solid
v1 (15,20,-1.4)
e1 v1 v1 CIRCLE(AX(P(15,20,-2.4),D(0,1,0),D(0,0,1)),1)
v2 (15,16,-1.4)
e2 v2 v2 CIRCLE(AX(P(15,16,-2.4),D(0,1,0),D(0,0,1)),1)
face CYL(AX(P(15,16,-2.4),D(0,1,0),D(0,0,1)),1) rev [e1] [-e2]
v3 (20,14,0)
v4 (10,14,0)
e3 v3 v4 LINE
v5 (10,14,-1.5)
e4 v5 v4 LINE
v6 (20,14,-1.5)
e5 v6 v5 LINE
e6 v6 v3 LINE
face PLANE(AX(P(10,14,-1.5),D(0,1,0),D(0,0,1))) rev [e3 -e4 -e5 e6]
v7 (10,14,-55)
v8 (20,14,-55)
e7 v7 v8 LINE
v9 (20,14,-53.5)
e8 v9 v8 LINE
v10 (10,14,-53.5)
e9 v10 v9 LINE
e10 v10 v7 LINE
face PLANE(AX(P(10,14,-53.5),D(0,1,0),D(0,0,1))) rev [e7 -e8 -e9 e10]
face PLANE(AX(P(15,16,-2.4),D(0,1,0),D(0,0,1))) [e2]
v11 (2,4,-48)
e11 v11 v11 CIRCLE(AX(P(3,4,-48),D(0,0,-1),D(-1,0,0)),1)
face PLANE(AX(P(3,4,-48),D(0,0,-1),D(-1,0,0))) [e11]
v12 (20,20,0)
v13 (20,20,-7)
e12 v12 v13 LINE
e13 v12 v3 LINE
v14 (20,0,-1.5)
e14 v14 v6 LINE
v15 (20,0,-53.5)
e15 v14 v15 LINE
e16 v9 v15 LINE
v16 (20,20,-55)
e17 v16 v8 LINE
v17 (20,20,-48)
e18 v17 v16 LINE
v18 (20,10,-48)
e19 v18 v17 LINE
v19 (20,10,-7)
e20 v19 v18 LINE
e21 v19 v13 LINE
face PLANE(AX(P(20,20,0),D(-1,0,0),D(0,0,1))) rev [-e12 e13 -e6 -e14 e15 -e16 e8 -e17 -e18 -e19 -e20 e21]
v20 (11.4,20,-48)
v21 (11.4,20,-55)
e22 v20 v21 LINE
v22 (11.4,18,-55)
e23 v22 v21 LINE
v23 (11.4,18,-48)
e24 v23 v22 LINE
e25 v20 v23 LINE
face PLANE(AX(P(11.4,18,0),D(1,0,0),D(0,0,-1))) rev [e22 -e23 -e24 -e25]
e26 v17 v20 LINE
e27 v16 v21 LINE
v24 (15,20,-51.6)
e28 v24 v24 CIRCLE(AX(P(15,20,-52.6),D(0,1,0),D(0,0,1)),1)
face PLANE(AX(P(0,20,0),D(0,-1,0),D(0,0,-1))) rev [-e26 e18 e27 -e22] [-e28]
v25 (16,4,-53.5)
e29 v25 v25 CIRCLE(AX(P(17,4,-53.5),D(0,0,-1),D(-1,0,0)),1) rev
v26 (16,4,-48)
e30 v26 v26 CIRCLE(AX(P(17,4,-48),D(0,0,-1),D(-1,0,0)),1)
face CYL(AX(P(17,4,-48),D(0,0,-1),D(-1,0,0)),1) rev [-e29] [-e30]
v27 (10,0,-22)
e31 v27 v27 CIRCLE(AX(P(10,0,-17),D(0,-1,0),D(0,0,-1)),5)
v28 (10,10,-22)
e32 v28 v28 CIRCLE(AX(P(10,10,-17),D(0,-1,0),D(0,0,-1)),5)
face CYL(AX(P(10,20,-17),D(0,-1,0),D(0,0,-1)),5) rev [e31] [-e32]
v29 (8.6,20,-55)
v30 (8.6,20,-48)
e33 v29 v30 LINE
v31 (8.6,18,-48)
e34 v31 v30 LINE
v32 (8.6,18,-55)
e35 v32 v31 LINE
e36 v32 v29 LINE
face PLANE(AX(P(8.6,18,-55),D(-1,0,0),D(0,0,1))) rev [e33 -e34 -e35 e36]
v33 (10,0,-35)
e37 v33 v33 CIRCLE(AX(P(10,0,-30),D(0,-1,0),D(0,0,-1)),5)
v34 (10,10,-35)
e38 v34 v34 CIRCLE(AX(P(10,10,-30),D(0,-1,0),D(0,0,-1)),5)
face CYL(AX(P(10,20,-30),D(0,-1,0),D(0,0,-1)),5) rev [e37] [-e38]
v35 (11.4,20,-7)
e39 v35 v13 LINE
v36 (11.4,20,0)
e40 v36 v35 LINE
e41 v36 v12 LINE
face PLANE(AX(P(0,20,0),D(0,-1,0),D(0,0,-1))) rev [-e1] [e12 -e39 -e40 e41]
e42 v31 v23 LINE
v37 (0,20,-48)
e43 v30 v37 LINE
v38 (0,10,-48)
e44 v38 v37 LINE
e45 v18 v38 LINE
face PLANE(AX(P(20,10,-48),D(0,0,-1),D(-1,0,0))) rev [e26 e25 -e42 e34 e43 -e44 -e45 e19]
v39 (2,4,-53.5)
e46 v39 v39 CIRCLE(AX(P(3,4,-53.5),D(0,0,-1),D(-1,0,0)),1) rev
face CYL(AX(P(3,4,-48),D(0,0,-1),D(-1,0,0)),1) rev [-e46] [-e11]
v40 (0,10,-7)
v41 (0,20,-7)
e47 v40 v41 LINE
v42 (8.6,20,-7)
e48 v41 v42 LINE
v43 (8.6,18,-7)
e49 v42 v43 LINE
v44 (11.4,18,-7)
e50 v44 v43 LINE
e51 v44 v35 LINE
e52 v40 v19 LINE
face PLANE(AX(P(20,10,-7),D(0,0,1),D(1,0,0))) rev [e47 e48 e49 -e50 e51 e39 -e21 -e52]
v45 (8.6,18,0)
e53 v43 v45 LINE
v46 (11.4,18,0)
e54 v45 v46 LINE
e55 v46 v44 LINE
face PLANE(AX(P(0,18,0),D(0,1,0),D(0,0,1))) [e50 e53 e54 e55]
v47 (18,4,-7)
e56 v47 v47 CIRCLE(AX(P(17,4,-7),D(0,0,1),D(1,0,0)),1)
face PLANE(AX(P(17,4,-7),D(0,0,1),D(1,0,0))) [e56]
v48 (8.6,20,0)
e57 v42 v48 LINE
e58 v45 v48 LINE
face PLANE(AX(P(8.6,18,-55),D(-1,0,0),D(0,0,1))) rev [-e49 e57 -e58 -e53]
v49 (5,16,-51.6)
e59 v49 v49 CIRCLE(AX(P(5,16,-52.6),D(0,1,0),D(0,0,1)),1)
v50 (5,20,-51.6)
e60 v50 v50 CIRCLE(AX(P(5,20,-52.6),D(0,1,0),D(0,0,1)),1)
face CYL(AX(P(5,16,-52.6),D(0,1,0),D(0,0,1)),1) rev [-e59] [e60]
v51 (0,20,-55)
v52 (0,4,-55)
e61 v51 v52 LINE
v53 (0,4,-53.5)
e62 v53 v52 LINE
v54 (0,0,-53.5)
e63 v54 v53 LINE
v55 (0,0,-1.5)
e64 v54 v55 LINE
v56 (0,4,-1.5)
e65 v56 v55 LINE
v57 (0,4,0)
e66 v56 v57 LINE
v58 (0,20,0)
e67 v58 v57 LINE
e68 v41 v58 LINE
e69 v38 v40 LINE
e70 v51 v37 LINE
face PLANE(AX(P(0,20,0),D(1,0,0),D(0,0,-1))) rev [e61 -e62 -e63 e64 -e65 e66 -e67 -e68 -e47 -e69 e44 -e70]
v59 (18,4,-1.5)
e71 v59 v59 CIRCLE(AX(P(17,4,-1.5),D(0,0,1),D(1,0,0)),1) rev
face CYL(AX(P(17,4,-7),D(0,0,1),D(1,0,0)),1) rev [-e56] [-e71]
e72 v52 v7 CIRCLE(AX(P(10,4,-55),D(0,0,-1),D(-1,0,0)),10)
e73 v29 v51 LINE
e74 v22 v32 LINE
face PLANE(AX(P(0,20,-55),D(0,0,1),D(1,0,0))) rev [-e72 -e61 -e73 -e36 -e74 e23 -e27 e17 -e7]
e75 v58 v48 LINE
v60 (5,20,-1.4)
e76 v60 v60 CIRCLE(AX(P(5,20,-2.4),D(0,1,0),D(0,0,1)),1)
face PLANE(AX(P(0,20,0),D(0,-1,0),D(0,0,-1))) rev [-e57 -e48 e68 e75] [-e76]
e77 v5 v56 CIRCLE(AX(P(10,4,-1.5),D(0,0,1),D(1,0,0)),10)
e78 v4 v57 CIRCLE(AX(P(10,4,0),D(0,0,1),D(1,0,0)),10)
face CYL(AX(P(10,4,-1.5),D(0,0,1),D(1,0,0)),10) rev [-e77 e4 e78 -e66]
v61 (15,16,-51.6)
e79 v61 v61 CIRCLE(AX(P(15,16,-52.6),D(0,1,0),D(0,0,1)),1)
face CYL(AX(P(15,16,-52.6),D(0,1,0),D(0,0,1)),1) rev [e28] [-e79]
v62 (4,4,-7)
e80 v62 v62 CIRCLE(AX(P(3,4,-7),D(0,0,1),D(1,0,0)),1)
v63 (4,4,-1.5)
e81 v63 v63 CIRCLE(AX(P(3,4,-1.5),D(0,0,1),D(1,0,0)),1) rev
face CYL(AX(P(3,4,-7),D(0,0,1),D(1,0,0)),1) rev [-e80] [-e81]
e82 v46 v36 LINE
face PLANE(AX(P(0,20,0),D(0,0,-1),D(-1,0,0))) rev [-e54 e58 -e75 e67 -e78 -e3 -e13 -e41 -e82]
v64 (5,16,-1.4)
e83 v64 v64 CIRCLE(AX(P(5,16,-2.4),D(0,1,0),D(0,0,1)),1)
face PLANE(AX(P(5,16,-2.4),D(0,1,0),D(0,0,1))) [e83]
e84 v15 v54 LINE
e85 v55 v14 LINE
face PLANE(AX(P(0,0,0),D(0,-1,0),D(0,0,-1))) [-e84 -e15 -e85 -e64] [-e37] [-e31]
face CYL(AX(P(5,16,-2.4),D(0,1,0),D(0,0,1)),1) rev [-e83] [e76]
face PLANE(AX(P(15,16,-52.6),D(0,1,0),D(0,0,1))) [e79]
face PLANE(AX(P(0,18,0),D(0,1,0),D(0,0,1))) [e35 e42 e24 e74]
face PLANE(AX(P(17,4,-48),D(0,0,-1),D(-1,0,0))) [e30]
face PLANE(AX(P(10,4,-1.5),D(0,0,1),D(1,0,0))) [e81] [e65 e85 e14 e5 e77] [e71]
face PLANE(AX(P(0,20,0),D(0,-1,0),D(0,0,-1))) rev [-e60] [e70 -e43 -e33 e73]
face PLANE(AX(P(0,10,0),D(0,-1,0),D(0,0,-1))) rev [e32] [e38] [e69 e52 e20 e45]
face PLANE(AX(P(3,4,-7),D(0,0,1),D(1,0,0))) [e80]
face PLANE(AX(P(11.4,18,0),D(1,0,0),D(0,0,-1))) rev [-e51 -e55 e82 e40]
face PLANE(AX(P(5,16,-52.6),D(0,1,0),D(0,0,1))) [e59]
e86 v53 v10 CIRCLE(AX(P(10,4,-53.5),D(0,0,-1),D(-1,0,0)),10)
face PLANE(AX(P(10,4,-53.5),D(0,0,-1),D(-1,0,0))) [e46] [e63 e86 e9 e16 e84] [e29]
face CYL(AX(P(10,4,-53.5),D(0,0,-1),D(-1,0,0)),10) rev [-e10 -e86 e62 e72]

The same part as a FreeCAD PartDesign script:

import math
import FreeCAD as App
import Part
import Sketcher

V = App.Vector

doc = App.newDocument("Part")
params = doc.addObject("Spreadsheet::Sheet", "Params")
for row, (alias, value) in enumerate([
    ("sketch1_width", "20 mm"),
    ("sketch1_height", "55 mm"),
    ("pad1_length", "20 mm"),
    ("sketch2_width", "20 mm"),
    ("sketch2_height", "41 mm"),
    ("pocket1_length", "10 mm"),
    ("sketch3_height", "55 mm"),
    ("sketch3_width", "2.8 mm"),
    ("pocket2_length", "2 mm"),
    ("sketch4_diameter", "2 mm"),
    ("pocket3_length", "4 mm"),
    ("sketch5_diameter", "10 mm"),
    ("sketch6_diameter", "2 mm"),
    ("pocket5_length", "7 mm"),
    ("sketch7_diameter", "2 mm"),
    ("pocket6_length", "7 mm"),
    ("sketch8_radius", "10 mm"),
    ("sketch8_width", "10 mm"),
    ("sketch8_height", "14 mm"),
    ("pocket7_length", "1.5 mm"),
    ("sketch9_radius", "10 mm"),
    ("sketch9_width", "20 mm"),
    ("sketch9_height", "4 mm"),
    ("pocket8_length", "1.5 mm"),
], start=1):
    params.set(f"A{row}", alias)
    params.set(f"B{row}", "=" + value)
    params.setAlias(f"B{row}", alias)

body = doc.addObject("PartDesign::Body", "Body")

# Sketch on XZ plane
sketch1 = doc.addObject("Sketcher::SketchObject", "Sketch")
body.addObject(sketch1)
sketch1.AttachmentSupport = (doc.XZ_Plane, [""])
sketch1.MapMode = "FlatFace"
sketch1.addGeometry([
    Part.LineSegment(V(0, -55, 0), V(0, 0, 0)),
    Part.LineSegment(V(0, 0, 0), V(20, 0, 0)),
    Part.LineSegment(V(20, 0, 0), V(20, -55, 0)),
    Part.LineSegment(V(20, -55, 0), V(0, -55, 0)),
], False)
sketch1.addConstraint([
    Sketcher.Constraint("Coincident", 0, 2, 1, 1),
    Sketcher.Constraint("Coincident", 1, 2, 2, 1),
    Sketcher.Constraint("Coincident", 2, 2, 3, 1),
    Sketcher.Constraint("Coincident", 3, 2, 0, 1),
    Sketcher.Constraint("Vertical", 0),
    Sketcher.Constraint("Horizontal", 1),
    Sketcher.Constraint("Vertical", 2),
    Sketcher.Constraint("Horizontal", 3),
    Sketcher.Constraint("Coincident", 0, 2, -1, 1),
    Sketcher.Constraint("DistanceX", 1, 1, 1, 2, 20.0),
    Sketcher.Constraint("DistanceY", 0, 1, 0, 2, 55.0),
])
sketch1.setExpression("Constraints[9]", "Params.sketch1_width")
sketch1.setExpression("Constraints[10]", "Params.sketch1_height")
pad1 = doc.addObject("PartDesign::Pad", "Pad")
body.addObject(pad1)
pad1.Profile = sketch1
pad1.setExpression("Length", "Params.pad1_length")
pad1.Reversed = True

# Sketch on XZ plane
sketch2 = doc.addObject("Sketcher::SketchObject", "Sketch001")
body.addObject(sketch2)
sketch2.AttachmentSupport = (doc.XZ_Plane, [""])
sketch2.MapMode = "FlatFace"
sketch2.AttachmentOffset = App.Placement(V(0, 0, -20), App.Rotation())
sketch2.addGeometry([
    Part.LineSegment(V(0, -48, 0), V(0, -7, 0)),
    Part.LineSegment(V(0, -7, 0), V(20, -7, 0)),
    Part.LineSegment(V(20, -7, 0), V(20, -48, 0)),
    Part.LineSegment(V(20, -48, 0), V(0, -48, 0)),
], False)
sketch2.addConstraint([
    Sketcher.Constraint("Coincident", 0, 2, 1, 1),
    Sketcher.Constraint("Coincident", 1, 2, 2, 1),
    Sketcher.Constraint("Coincident", 2, 2, 3, 1),
    Sketcher.Constraint("Coincident", 3, 2, 0, 1),
    Sketcher.Constraint("Vertical", 0),
    Sketcher.Constraint("Horizontal", 1),
    Sketcher.Constraint("Vertical", 2),
    Sketcher.Constraint("Horizontal", 3),
    Sketcher.Constraint("PointOnObject", 0, 2, -2),
    Sketcher.Constraint("DistanceX", 1, 1, 1, 2, 20.0),
    Sketcher.Constraint("DistanceY", 0, 1, 0, 2, 41.0),
    Sketcher.Constraint("DistanceY", 0, 2, -1, 1, 7.0),
])
sketch2.setExpression("Constraints[9]", "Params.sketch2_width")
sketch2.setExpression("Constraints[10]", "Params.sketch2_height")
pocket1 = doc.addObject("PartDesign::Pocket", "Pocket")
body.addObject(pocket1)
pocket1.Profile = sketch2
pocket1.setExpression("Length", "Params.pocket1_length")
pocket1.Reversed = True

# Sketch on XZ plane
sketch3 = doc.addObject("Sketcher::SketchObject", "Sketch002")
body.addObject(sketch3)
sketch3.AttachmentSupport = (doc.XZ_Plane, [""])
sketch3.MapMode = "FlatFace"
sketch3.AttachmentOffset = App.Placement(V(0, 0, -20), App.Rotation())
sketch3.addGeometry([
    Part.LineSegment(V(8.6, -55, 0), V(8.6, 0, 0)),
    Part.LineSegment(V(8.6, 0, 0), V(11.4, 0, 0)),
    Part.LineSegment(V(11.4, 0, 0), V(11.4, -55, 0)),
    Part.LineSegment(V(11.4, -55, 0), V(8.6, -55, 0)),
], False)
sketch3.addConstraint([
    Sketcher.Constraint("Coincident", 0, 2, 1, 1),
    Sketcher.Constraint("Coincident", 1, 2, 2, 1),
    Sketcher.Constraint("Coincident", 2, 2, 3, 1),
    Sketcher.Constraint("Coincident", 3, 2, 0, 1),
    Sketcher.Constraint("Vertical", 0),
    Sketcher.Constraint("Horizontal", 1),
    Sketcher.Constraint("Vertical", 2),
    Sketcher.Constraint("Horizontal", 3),
    Sketcher.Constraint("PointOnObject", 0, 2, -1),
    Sketcher.Constraint("DistanceY", 0, 1, 0, 2, 55.0),
    Sketcher.Constraint("DistanceX", 1, 1, 1, 2, 2.8),
    Sketcher.Constraint("DistanceX", -1, 1, 0, 2, 8.6),
])
sketch3.setExpression("Constraints[9]", "Params.sketch3_height")
sketch3.setExpression("Constraints[10]", "Params.sketch3_width")
pocket2 = doc.addObject("PartDesign::Pocket", "Pocket001")
body.addObject(pocket2)
pocket2.Profile = sketch3
pocket2.setExpression("Length", "Params.pocket2_length")
pocket2.Reversed = True

# Sketch on XZ plane
sketch4 = doc.addObject("Sketcher::SketchObject", "Sketch003")
body.addObject(sketch4)
sketch4.AttachmentSupport = (doc.XZ_Plane, [""])
sketch4.MapMode = "FlatFace"
sketch4.AttachmentOffset = App.Placement(V(0, 0, -20), App.Rotation())
sketch4.addGeometry([
    Part.Circle(V(15, -52.6, 0), V(0, 0, 1), 1),
    Part.Circle(V(5, -52.6, 0), V(0, 0, 1), 1),
    Part.Circle(V(15, -2.4, 0), V(0, 0, 1), 1),
    Part.Circle(V(5, -2.4, 0), V(0, 0, 1), 1),
], False)
sketch4.addConstraint([
    Sketcher.Constraint("Equal", 0, 1),
    Sketcher.Constraint("Equal", 1, 2),
    Sketcher.Constraint("Equal", 2, 3),
    Sketcher.Constraint("Horizontal", 0, 3, 1, 3),
    Sketcher.Constraint("Horizontal", 2, 3, 3, 3),
    Sketcher.Constraint("Vertical", 0, 3, 2, 3),
    Sketcher.Constraint("Vertical", 1, 3, 3, 3),
    Sketcher.Constraint("Diameter", 0, 2.0),
    Sketcher.Constraint("DistanceX", -1, 1, 0, 3, 15.0),
    Sketcher.Constraint("DistanceX", -1, 1, 1, 3, 5.0),
    Sketcher.Constraint("DistanceY", 0, 3, -1, 1, 52.6),
    Sketcher.Constraint("DistanceY", 2, 3, -1, 1, 2.4),
])
sketch4.setExpression("Constraints[7]", "Params.sketch4_diameter")
pocket3 = doc.addObject("PartDesign::Pocket", "Pocket002")
body.addObject(pocket3)
pocket3.Profile = sketch4
pocket3.setExpression("Length", "Params.pocket3_length")
pocket3.Reversed = True

# Sketch on XZ plane
sketch5 = doc.addObject("Sketcher::SketchObject", "Sketch004")
body.addObject(sketch5)
sketch5.AttachmentSupport = (doc.XZ_Plane, [""])
sketch5.MapMode = "FlatFace"
sketch5.addGeometry([
    Part.Circle(V(10, -17, 0), V(0, 0, 1), 5),
    Part.Circle(V(10, -30, 0), V(0, 0, 1), 5),
], False)
sketch5.addConstraint([
    Sketcher.Constraint("Equal", 0, 1),
    Sketcher.Constraint("Vertical", 0, 3, 1, 3),
    Sketcher.Constraint("Diameter", 0, 10.0),
    Sketcher.Constraint("DistanceX", -1, 1, 0, 3, 10.0),
    Sketcher.Constraint("DistanceY", 0, 3, -1, 1, 17.0),
    Sketcher.Constraint("DistanceY", 1, 3, -1, 1, 30.0),
])
sketch5.setExpression("Constraints[2]", "Params.sketch5_diameter")
pocket4 = doc.addObject("PartDesign::Pocket", "Pocket003")
body.addObject(pocket4)
pocket4.Profile = sketch5
pocket4.Type = "ThroughAll"

# Sketch on XY plane
sketch6 = doc.addObject("Sketcher::SketchObject", "Sketch005")
body.addObject(sketch6)
sketch6.AttachmentSupport = (doc.XY_Plane, [""])
sketch6.MapMode = "FlatFace"
sketch6.AttachmentOffset = App.Placement(V(0, 0, -55), App.Rotation())
sketch6.addGeometry([
    Part.Circle(V(17, 4, 0), V(0, 0, 1), 1),
    Part.Circle(V(3, 4, 0), V(0, 0, 1), 1),
], False)
sketch6.addConstraint([
    Sketcher.Constraint("Equal", 0, 1),
    Sketcher.Constraint("Horizontal", 0, 3, 1, 3),
    Sketcher.Constraint("Diameter", 0, 2.0),
    Sketcher.Constraint("DistanceX", -1, 1, 0, 3, 17.0),
    Sketcher.Constraint("DistanceY", -1, 1, 0, 3, 4.0),
    Sketcher.Constraint("DistanceX", -1, 1, 1, 3, 3.0),
])
sketch6.setExpression("Constraints[2]", "Params.sketch6_diameter")
pocket5 = doc.addObject("PartDesign::Pocket", "Pocket004")
body.addObject(pocket5)
pocket5.Profile = sketch6
pocket5.setExpression("Length", "Params.pocket5_length")
pocket5.Reversed = True

# Sketch on XY plane
sketch7 = doc.addObject("Sketcher::SketchObject", "Sketch006")
body.addObject(sketch7)
sketch7.AttachmentSupport = (doc.XY_Plane, [""])
sketch7.MapMode = "FlatFace"
sketch7.AttachmentOffset = App.Placement(V(0, 0, -7), App.Rotation())
sketch7.addGeometry([
    Part.Circle(V(3, 4, 0), V(0, 0, 1), 1),
    Part.Circle(V(17, 4, 0), V(0, 0, 1), 1),
], False)
sketch7.addConstraint([
    Sketcher.Constraint("Equal", 0, 1),
    Sketcher.Constraint("Horizontal", 0, 3, 1, 3),
    Sketcher.Constraint("Diameter", 0, 2.0),
    Sketcher.Constraint("DistanceX", -1, 1, 0, 3, 3.0),
    Sketcher.Constraint("DistanceY", -1, 1, 0, 3, 4.0),
    Sketcher.Constraint("DistanceX", -1, 1, 1, 3, 17.0),
])
sketch7.setExpression("Constraints[2]", "Params.sketch7_diameter")
pocket6 = doc.addObject("PartDesign::Pocket", "Pocket005")
body.addObject(pocket6)
pocket6.Profile = sketch7
pocket6.setExpression("Length", "Params.pocket6_length")
pocket6.Reversed = True

# Sketch on XY plane
sketch8 = doc.addObject("Sketcher::SketchObject", "Sketch007")
body.addObject(sketch8)
sketch8.AttachmentSupport = (doc.XY_Plane, [""])
sketch8.MapMode = "FlatFace"
sketch8.AttachmentOffset = App.Placement(V(0, 0, -55), App.Rotation())
sketch8.addGeometry([
    Part.LineSegment(V(10, 14, 0), V(20, 14, 0)),  # 0
    Part.LineSegment(V(20, 14, 0), V(20, 0, 0)),  # 1
    Part.LineSegment(V(20, 0, 0), V(0, 0, 0)),  # 2
    Part.LineSegment(V(0, 0, 0), V(0, 4, 0)),  # 3
    Part.ArcOfCircle(Part.Circle(V(10, 4, 0), V(0, 0, 1), 10), math.radians(90), math.radians(180)),  # 4
], False)
sketch8.addConstraint([
    Sketcher.Constraint("Coincident", 0, 2, 1, 1),
    Sketcher.Constraint("Coincident", 1, 2, 2, 1),
    Sketcher.Constraint("Coincident", 2, 2, 3, 1),
    Sketcher.Constraint("Tangent", 3, 2, 4, 2),
    Sketcher.Constraint("Tangent", 4, 1, 0, 1),
    Sketcher.Constraint("Horizontal", 0),
    Sketcher.Constraint("Vertical", 1),
    Sketcher.Constraint("Horizontal", 2),
    Sketcher.Constraint("Vertical", 3),
    Sketcher.Constraint("Coincident", 2, 2, -1, 1),
    Sketcher.Constraint("Radius", 4, 10.0),
    Sketcher.Constraint("DistanceX", 0, 1, 0, 2, 10.0),
    Sketcher.Constraint("DistanceY", 1, 2, 1, 1, 14.0),
])
sketch8.setExpression("Constraints[10]", "Params.sketch8_radius")
sketch8.setExpression("Constraints[11]", "Params.sketch8_width")
sketch8.setExpression("Constraints[12]", "Params.sketch8_height")
pocket7 = doc.addObject("PartDesign::Pocket", "Pocket006")
body.addObject(pocket7)
pocket7.Profile = sketch8
pocket7.setExpression("Length", "Params.pocket7_length")
pocket7.Reversed = True

# Sketch on XY plane
sketch9 = doc.addObject("Sketcher::SketchObject", "Sketch008")
body.addObject(sketch9)
sketch9.AttachmentSupport = (doc.XY_Plane, [""])
sketch9.MapMode = "FlatFace"
sketch9.AttachmentOffset = App.Placement(V(0, 0, -1.5), App.Rotation())
sketch9.addGeometry([
    Part.LineSegment(V(0, 4, 0), V(0, 0, 0)),  # 0
    Part.LineSegment(V(0, 0, 0), V(20, 0, 0)),  # 1
    Part.LineSegment(V(20, 0, 0), V(20, 14, 0)),  # 2
    Part.LineSegment(V(20, 14, 0), V(10, 14, 0)),  # 3
    Part.ArcOfCircle(Part.Circle(V(10, 4, 0), V(0, 0, 1), 10), math.radians(90), math.radians(180)),  # 4
], False)
sketch9.addConstraint([
    Sketcher.Constraint("Coincident", 0, 2, 1, 1),
    Sketcher.Constraint("Coincident", 1, 2, 2, 1),
    Sketcher.Constraint("Coincident", 2, 2, 3, 1),
    Sketcher.Constraint("Tangent", 3, 2, 4, 1),
    Sketcher.Constraint("Tangent", 4, 2, 0, 1),
    Sketcher.Constraint("Vertical", 0),
    Sketcher.Constraint("Horizontal", 1),
    Sketcher.Constraint("Vertical", 2),
    Sketcher.Constraint("Horizontal", 3),
    Sketcher.Constraint("Coincident", 0, 2, -1, 1),
    Sketcher.Constraint("Radius", 4, 10.0),
    Sketcher.Constraint("DistanceX", 1, 1, 1, 2, 20.0),
    Sketcher.Constraint("DistanceY", 0, 2, 0, 1, 4.0),
])
sketch9.setExpression("Constraints[10]", "Params.sketch9_radius")
sketch9.setExpression("Constraints[11]", "Params.sketch9_width")
sketch9.setExpression("Constraints[12]", "Params.sketch9_height")
pocket8 = doc.addObject("PartDesign::Pocket", "Pocket007")
body.addObject(pocket8)
pocket8.Profile = sketch9
pocket8.setExpression("Length", "Params.pocket8_length")
pocket8.Reversed = True

doc.recompute()
